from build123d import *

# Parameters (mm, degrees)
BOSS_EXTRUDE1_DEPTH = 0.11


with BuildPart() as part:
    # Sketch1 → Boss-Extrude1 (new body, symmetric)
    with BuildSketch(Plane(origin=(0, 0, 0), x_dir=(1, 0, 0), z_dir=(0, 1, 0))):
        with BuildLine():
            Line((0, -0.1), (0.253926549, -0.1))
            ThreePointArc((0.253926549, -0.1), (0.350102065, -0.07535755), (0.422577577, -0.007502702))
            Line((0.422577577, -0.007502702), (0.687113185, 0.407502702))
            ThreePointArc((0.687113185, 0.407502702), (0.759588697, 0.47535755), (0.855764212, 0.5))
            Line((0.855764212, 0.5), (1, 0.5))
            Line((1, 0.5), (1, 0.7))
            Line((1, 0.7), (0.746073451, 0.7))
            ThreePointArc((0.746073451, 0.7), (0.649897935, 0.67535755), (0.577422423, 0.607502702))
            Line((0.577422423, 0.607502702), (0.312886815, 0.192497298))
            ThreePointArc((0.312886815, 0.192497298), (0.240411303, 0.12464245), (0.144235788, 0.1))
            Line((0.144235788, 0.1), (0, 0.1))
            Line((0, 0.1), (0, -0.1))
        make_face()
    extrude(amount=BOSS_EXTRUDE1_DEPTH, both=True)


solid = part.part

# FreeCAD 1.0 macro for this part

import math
import FreeCAD as App
import Part
import Sketcher

doc = App.newDocument("Part")
body = doc.addObject("PartDesign::Body", "Body")

# Sketch on XZ plane
sketch1 = body.newObject("Sketcher::SketchObject", "Sketch")
sketch1.AttachmentSupport = (doc.getObject("XZ_Plane"), [""])
sketch1.MapMode = "FlatFace"
sketch1.addGeometry([
    Part.LineSegment(App.Vector(0, 0.1, 0), App.Vector(0.25, 0.1, 0)),  # 0
    Part.ArcOfCircle(Part.Circle(App.Vector(0.25, -0.1, 0), App.Vector(0, 0, 1), 0.2), math.radians(33), math.radians(90)),  # 1
    Part.LineSegment(App.Vector(0.42, 0.01, 0), App.Vector(0.69, -0.41, 0)),  # 2
    Part.ArcOfCircle(Part.Circle(App.Vector(0.86, -0.3, 0), App.Vector(0, 0, 1), 0.2), math.radians(-147), math.radians(-90)),  # 3
    Part.LineSegment(App.Vector(0.86, -0.5, 0), App.Vector(1, -0.5, 0)),  # 4
    Part.LineSegment(App.Vector(1, -0.5, 0), App.Vector(1, -0.7, 0)),  # 5
    Part.LineSegment(App.Vector(1, -0.7, 0), App.Vector(0.75, -0.7, 0)),  # 6
    Part.ArcOfCircle(Part.Circle(App.Vector(0.75, -0.5, 0), App.Vector(0, 0, 1), 0.2), math.radians(-147), math.radians(-90)),  # 7
    Part.LineSegment(App.Vector(0.58, -0.61, 0), App.Vector(0.31, -0.19, 0)),  # 8
    Part.ArcOfCircle(Part.Circle(App.Vector(0.14, -0.3, 0), App.Vector(0, 0, 1), 0.2), math.radians(33), math.radians(90)),  # 9
    Part.LineSegment(App.Vector(0.14, -0.1, 0), App.Vector(0, -0.1, 0)),  # 10
    Part.LineSegment(App.Vector(0, -0.1, 0), App.Vector(0, 0.1, 0)),  # 11
], False)
sketch1.addConstraint([
    Sketcher.Constraint("Tangent", 0, 2, 1, 2),
    Sketcher.Constraint("Tangent", 1, 1, 2, 1),
    Sketcher.Constraint("Tangent", 2, 2, 3, 1),
    Sketcher.Constraint("Tangent", 3, 2, 4, 1),
    Sketcher.Constraint("Coincident", 4, 2, 5, 1),
    Sketcher.Constraint("Coincident", 5, 2, 6, 1),
    Sketcher.Constraint("Tangent", 6, 2, 7, 2),
    Sketcher.Constraint("Tangent", 7, 1, 8, 1),
    Sketcher.Constraint("Tangent", 8, 2, 9, 1),
    Sketcher.Constraint("Tangent", 9, 2, 10, 1),
    Sketcher.Constraint("Coincident", 10, 2, 11, 1),
    Sketcher.Constraint("Coincident", 11, 2, 0, 1),
    Sketcher.Constraint("Horizontal", 0),
    Sketcher.Constraint("Horizontal", 4),
    Sketcher.Constraint("Vertical", 5),
    Sketcher.Constraint("Horizontal", 6),
    Sketcher.Constraint("Horizontal", 10),
    Sketcher.Constraint("Vertical", 11),
    Sketcher.Constraint("Equal", 1, 3),
    Sketcher.Constraint("Equal", 3, 7),
    Sketcher.Constraint("Equal", 7, 9),
    Sketcher.Constraint("Symmetric", 10, 2, 11, 2, -1, 1),
    Sketcher.Constraint("Parallel", 2, 8),
    Sketcher.Constraint("Horizontal", 3, 3, 9, 3),
    Sketcher.Constraint("Horizontal", 7, 3, 3, 2),
    Sketcher.Constraint("Horizontal", 1, 3, 9, 2),
    Sketcher.Constraint("Equal", 0, 6),
    Sketcher.Constraint("Radius", 1, 0.2),
    Sketcher.Constraint("DistanceX", -1, 1, 4, 2, 1.0),
    Sketcher.Constraint("DistanceX", 0, 1, 0, 2, 0.253927),
    Sketcher.Constraint("DistanceX", 4, 1, 4, 2, 0.144236),
])
pad1 = body.newObject("PartDesign::Pad", "Pad")
pad1.Profile = sketch1
pad1.Length = 0.22
pad1.Midplane = True

doc.recompute()
